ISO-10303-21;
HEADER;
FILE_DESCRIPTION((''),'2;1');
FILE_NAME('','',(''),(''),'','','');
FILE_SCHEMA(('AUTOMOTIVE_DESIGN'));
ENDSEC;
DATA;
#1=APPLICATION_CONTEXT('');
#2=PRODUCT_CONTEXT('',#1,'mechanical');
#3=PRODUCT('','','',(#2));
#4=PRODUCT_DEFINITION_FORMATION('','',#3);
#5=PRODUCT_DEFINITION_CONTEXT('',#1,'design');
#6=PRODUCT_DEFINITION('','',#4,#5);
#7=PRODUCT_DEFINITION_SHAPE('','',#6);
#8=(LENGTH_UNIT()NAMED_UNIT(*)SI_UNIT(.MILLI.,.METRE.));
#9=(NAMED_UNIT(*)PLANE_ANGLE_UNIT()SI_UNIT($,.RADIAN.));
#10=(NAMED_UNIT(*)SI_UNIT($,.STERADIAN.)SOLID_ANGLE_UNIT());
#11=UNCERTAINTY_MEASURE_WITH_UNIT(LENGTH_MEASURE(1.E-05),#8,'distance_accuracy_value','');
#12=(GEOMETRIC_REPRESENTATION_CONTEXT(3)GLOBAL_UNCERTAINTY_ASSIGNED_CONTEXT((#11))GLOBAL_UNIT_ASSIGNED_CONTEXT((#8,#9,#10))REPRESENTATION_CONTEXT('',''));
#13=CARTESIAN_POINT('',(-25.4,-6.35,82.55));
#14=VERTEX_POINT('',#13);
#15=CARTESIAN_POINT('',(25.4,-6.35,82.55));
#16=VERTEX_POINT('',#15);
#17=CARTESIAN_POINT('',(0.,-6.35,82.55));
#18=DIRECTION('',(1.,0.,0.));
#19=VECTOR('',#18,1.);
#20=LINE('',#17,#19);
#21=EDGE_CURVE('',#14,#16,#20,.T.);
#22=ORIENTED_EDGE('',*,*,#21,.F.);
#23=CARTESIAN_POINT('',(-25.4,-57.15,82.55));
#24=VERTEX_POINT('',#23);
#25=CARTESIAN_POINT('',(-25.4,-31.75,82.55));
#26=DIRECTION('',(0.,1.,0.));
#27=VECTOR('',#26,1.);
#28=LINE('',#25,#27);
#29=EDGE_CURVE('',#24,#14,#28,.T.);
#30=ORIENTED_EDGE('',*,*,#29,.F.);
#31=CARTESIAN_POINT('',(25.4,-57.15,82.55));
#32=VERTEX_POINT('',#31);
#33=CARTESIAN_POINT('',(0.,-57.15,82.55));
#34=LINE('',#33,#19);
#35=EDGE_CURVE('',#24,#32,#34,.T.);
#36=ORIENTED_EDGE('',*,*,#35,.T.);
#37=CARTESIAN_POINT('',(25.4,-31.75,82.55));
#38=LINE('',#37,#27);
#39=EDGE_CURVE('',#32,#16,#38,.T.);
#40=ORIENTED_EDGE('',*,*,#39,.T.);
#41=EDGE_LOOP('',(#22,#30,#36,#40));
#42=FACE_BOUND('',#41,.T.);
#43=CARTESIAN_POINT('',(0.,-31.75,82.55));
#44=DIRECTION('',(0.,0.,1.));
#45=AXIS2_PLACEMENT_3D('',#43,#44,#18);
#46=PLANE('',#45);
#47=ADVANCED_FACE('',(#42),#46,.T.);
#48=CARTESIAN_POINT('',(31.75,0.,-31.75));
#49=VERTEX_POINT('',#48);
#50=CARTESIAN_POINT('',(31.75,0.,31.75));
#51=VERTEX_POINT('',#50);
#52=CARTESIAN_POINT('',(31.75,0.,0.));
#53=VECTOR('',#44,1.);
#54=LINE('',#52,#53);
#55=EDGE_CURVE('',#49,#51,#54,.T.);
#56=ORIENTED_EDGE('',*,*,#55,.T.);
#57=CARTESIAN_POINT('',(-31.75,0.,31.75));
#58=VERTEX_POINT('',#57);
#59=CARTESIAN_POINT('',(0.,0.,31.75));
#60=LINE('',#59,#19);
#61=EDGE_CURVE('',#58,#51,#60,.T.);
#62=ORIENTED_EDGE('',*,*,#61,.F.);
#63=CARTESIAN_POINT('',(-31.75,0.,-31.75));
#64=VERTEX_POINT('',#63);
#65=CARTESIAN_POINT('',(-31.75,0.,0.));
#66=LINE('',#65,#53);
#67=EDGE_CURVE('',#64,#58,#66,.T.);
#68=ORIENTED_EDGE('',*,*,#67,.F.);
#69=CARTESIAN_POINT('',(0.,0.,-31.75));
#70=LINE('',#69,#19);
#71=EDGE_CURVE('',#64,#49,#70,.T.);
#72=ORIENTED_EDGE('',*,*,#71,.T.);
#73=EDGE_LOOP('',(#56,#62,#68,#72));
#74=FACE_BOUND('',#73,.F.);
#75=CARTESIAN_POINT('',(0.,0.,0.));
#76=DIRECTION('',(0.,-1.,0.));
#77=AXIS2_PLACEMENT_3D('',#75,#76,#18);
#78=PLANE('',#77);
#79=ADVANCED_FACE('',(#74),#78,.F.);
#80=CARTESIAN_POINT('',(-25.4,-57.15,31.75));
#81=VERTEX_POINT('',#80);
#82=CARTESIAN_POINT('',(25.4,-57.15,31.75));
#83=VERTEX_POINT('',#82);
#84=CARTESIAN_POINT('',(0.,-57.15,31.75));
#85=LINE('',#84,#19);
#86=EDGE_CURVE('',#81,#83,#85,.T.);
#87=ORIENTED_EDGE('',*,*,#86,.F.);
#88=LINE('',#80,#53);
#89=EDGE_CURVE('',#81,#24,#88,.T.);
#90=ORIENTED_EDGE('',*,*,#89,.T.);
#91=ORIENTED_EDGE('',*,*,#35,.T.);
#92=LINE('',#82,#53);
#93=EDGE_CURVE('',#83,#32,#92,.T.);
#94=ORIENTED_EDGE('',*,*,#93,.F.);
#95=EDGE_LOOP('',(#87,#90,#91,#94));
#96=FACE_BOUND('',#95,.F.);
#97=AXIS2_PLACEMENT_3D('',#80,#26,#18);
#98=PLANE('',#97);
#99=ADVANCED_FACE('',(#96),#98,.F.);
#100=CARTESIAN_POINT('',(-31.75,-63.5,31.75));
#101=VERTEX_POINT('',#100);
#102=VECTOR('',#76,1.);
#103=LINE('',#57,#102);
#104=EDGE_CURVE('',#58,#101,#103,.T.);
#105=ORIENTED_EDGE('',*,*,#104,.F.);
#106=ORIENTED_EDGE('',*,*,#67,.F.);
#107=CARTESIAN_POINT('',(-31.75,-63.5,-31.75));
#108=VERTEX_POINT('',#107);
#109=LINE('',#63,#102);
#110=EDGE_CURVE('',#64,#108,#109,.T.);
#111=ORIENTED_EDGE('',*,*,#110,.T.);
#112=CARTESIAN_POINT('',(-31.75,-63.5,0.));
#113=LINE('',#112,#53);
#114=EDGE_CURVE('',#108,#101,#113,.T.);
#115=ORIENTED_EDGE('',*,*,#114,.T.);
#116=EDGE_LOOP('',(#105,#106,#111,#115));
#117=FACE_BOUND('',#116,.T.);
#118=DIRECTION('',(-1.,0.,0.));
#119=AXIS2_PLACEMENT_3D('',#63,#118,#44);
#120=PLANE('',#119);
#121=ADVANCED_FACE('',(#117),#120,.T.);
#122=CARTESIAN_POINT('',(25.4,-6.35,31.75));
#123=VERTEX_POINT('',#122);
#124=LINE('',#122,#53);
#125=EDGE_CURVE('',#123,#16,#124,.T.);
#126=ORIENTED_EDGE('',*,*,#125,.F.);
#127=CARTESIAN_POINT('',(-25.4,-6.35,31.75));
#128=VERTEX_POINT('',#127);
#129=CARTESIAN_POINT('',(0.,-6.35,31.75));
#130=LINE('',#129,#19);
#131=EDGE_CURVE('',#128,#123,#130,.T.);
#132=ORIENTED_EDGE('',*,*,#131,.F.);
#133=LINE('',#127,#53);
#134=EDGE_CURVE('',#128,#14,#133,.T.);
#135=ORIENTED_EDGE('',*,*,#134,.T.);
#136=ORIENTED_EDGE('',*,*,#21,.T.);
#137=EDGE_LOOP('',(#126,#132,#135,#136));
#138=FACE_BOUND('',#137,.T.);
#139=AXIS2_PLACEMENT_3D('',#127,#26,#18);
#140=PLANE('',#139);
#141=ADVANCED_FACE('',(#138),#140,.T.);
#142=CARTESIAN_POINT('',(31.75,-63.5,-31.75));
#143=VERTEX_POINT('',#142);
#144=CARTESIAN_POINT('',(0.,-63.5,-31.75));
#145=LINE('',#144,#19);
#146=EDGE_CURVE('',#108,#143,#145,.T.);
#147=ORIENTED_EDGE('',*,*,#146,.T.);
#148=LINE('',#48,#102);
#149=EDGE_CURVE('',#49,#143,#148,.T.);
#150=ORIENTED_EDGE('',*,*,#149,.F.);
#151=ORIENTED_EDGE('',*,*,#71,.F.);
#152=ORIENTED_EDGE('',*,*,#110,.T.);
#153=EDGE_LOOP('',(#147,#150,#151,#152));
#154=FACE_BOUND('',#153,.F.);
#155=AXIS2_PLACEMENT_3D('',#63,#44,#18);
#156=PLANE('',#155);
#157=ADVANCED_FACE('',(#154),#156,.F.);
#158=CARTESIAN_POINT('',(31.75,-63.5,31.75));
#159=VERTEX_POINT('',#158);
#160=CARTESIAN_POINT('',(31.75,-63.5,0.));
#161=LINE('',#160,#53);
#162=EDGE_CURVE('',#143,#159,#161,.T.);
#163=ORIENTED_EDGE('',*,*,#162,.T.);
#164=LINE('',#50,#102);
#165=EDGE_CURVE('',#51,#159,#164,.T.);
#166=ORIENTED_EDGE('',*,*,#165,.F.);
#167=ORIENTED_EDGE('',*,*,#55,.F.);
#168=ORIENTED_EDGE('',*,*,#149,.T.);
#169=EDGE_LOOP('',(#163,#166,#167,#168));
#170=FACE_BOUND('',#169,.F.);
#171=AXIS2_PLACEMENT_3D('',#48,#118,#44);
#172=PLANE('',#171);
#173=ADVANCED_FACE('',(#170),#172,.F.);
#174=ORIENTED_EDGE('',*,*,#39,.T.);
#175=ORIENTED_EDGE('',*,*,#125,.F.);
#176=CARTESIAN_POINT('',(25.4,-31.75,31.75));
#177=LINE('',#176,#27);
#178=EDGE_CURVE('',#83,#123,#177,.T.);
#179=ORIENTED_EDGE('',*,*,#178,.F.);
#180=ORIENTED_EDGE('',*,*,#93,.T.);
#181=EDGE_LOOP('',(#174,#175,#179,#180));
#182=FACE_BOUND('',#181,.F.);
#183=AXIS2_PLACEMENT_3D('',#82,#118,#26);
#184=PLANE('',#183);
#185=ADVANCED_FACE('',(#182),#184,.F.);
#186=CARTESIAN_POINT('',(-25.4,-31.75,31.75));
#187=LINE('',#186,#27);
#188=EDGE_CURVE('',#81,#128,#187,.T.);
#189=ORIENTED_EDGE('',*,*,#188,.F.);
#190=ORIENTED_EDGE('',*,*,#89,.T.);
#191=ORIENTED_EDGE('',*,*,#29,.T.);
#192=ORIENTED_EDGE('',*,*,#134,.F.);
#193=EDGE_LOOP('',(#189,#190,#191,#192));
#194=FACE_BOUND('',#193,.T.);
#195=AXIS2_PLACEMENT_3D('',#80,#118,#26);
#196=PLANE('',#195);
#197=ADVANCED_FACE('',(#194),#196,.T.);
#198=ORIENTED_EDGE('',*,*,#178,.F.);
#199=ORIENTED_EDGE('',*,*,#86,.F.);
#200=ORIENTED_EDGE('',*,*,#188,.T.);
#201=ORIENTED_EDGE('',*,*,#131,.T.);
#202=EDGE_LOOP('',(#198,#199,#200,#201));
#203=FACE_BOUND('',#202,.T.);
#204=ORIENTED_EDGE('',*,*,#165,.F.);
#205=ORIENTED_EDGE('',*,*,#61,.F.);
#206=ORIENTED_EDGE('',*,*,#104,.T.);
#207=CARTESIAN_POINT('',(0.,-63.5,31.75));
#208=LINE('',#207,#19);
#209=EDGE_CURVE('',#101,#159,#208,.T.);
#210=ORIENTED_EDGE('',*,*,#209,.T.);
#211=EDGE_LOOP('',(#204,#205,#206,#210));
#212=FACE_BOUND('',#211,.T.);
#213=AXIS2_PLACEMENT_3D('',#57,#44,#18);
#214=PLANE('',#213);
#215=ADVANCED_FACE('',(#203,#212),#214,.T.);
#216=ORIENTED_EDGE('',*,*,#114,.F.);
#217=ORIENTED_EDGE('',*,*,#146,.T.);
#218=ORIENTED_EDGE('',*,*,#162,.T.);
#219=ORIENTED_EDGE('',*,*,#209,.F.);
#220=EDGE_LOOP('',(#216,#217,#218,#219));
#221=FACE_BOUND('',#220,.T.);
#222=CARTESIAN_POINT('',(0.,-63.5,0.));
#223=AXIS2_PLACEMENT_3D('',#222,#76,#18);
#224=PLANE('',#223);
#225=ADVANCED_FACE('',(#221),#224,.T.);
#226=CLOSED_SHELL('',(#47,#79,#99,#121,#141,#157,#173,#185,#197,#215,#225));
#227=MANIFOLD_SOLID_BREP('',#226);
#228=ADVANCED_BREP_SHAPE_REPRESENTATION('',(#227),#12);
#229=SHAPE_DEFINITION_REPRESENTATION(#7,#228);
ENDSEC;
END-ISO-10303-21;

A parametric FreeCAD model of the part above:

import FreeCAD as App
import Part
import Sketcher
from FreeCAD import Vector
Q = App.Units.Quantity

doc = App.newDocument("Part")
params = doc.addObject("Spreadsheet::Sheet", "Params")
for row, (alias, value) in enumerate([
    ("sketch1_width", "2.5 in"),
    ("pad1_length", "2.5 in"),
    ("sketch2_width", "2 in"),
    ("pad2_length", "2 in"),
], start=1):
    params.set(f"A{row}", alias)
    params.set(f"B{row}", "=" + value)
    params.setAlias(f"B{row}", alias)

body = doc.addObject("PartDesign::Body", "Body")

sketch1 = body.newObject("Sketcher::SketchObject", "Sketch")
sketch1.AttachmentSupport = (doc.getObject("XZ_Plane"), [""])
sketch1.MapMode = "FlatFace"
sketch1.addGeometry([
    Part.LineSegment(Vector(-31.75, 31.75, 0), Vector(-31.75, -31.75, 0)),
    Part.LineSegment(Vector(-31.75, -31.75, 0), Vector(31.75, -31.75, 0)),
    Part.LineSegment(Vector(31.75, -31.75, 0), Vector(31.75, 31.75, 0)),
    Part.LineSegment(Vector(31.75, 31.75, 0), Vector(-31.75, 31.75, 0)),
], False)
sketch1.addConstraint([
    Sketcher.Constraint("Coincident", 0, 2, 1, 1),
    Sketcher.Constraint("Coincident", 1, 2, 2, 1),
    Sketcher.Constraint("Coincident", 2, 2, 3, 1),
    Sketcher.Constraint("Coincident", 3, 2, 0, 1),
    Sketcher.Constraint("Vertical", 0),
    Sketcher.Constraint("Horizontal", 1),
    Sketcher.Constraint("Vertical", 2),
    Sketcher.Constraint("Horizontal", 3),
    Sketcher.Constraint("Symmetric", 0, 2, 2, 2, -1, 1),
    Sketcher.Constraint("Equal", 3, 0),
    Sketcher.Constraint("DistanceX", 1, 1, 1, 2, Q("2.5 in")),
])
sketch1.setExpression("Constraints[10]", "Params.sketch1_width")
pad1 = body.newObject("PartDesign::Pad", "Pad")
pad1.Profile = sketch1
pad1.setExpression("Length", "Params.pad1_length")

sketch2 = body.newObject("Sketcher::SketchObject", "Sketch001")
sketch2.AttachmentSupport = (doc.getObject("XY_Plane"), [""])
sketch2.MapMode = "FlatFace"
sketch2.AttachmentOffset = App.Placement(Vector(0, 0, 1.25 * 25.4), App.Rotation())
sketch2.addGeometry([
    Part.LineSegment(Vector(-25.4, -6.35, 0), Vector(-25.4, -57.15, 0)),
    Part.LineSegment(Vector(-25.4, -57.15, 0), Vector(25.4, -57.15, 0)),
    Part.LineSegment(Vector(25.4, -57.15, 0), Vector(25.4, -6.35, 0)),
    Part.LineSegment(Vector(25.4, -6.35, 0), Vector(-25.4, -6.35, 0)),
], False)
sketch2.addConstraint([
    Sketcher.Constraint("Coincident", 0, 2, 1, 1),
    Sketcher.Constraint("Coincident", 1, 2, 2, 1),
    Sketcher.Constraint("Coincident", 2, 2, 3, 1),
    Sketcher.Constraint("Coincident", 3, 2, 0, 1),
    Sketcher.Constraint("Vertical", 0),
    Sketcher.Constraint("Horizontal", 1),
    Sketcher.Constraint("Vertical", 2),
    Sketcher.Constraint("Horizontal", 3),
    Sketcher.Constraint("Equal", 3, 0),
    Sketcher.Constraint("DistanceX", 1, 1, 1, 2, Q("2 in")),
    Sketcher.Constraint("DistanceX", 0, 2, -1, 1, Q("1 in")),
    Sketcher.Constraint("DistanceY", 0, 2, -1, 1, Q("2.25 in")),
])
sketch2.setExpression("Constraints[9]", "Params.sketch2_width")
pad2 = body.newObject("PartDesign::Pad", "Pad001")
pad2.Profile = sketch2
pad2.setExpression("Length", "Params.pad2_length")

doc.recompute()
